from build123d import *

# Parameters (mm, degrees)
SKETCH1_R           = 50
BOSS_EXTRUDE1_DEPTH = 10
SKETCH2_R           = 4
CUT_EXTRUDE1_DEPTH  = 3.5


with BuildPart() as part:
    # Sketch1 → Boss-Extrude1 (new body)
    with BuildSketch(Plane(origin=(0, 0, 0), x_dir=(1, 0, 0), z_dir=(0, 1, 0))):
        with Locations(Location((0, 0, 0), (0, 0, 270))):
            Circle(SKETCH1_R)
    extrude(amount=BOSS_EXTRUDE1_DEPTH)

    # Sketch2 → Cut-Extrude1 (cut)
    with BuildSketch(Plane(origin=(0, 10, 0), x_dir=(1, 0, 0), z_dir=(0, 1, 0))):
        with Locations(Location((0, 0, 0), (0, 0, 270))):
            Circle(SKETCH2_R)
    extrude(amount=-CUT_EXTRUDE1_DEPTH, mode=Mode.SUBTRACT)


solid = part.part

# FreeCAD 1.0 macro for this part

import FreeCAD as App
import Part
import Sketcher
Q = App.Units.Quantity

doc = App.newDocument("Part")
body = doc.addObject("PartDesign::Body", "Body")

sketch1 = body.newObject("Sketcher::SketchObject", "Sketch")
sketch1.AttachmentSupport = (doc.getObject("XZ_Plane"), [""])
sketch1.MapMode = "FlatFace"
sketch1.addGeometry(Part.Circle(App.Vector(0, 0, 0), App.Vector(0, 0, 1), 50), False)
sketch1.addConstraint([
    Sketcher.Constraint("Coincident", 0, 3, -1, 1),
    Sketcher.Constraint("Diameter", 0, Q("100 mm")),
])
pad1 = body.newObject("PartDesign::Pad", "Pad")
pad1.Profile = sketch1
pad1.Length = 10
pad1.Reversed = True

sketch2 = body.newObject("Sketcher::SketchObject", "Sketch001")
sketch2.AttachmentSupport = (doc.getObject("XZ_Plane"), [""])
sketch2.MapMode = "FlatFace"
sketch2.AttachmentOffset = App.Placement(App.Vector(0, 0, -10), App.Rotation())
sketch2.addGeometry(Part.Circle(App.Vector(0, 0, 0), App.Vector(0, 0, 1), 4), False)
sketch2.addConstraint([
    Sketcher.Constraint("Coincident", 0, 3, -1, 1),
    Sketcher.Constraint("Diameter", 0, Q("8 mm")),
])
pocket1 = body.newObject("PartDesign::Pocket", "Pocket")
pocket1.Profile = sketch2
pocket1.Length = 3.5
pocket1.Reversed = True

doc.recompute()
